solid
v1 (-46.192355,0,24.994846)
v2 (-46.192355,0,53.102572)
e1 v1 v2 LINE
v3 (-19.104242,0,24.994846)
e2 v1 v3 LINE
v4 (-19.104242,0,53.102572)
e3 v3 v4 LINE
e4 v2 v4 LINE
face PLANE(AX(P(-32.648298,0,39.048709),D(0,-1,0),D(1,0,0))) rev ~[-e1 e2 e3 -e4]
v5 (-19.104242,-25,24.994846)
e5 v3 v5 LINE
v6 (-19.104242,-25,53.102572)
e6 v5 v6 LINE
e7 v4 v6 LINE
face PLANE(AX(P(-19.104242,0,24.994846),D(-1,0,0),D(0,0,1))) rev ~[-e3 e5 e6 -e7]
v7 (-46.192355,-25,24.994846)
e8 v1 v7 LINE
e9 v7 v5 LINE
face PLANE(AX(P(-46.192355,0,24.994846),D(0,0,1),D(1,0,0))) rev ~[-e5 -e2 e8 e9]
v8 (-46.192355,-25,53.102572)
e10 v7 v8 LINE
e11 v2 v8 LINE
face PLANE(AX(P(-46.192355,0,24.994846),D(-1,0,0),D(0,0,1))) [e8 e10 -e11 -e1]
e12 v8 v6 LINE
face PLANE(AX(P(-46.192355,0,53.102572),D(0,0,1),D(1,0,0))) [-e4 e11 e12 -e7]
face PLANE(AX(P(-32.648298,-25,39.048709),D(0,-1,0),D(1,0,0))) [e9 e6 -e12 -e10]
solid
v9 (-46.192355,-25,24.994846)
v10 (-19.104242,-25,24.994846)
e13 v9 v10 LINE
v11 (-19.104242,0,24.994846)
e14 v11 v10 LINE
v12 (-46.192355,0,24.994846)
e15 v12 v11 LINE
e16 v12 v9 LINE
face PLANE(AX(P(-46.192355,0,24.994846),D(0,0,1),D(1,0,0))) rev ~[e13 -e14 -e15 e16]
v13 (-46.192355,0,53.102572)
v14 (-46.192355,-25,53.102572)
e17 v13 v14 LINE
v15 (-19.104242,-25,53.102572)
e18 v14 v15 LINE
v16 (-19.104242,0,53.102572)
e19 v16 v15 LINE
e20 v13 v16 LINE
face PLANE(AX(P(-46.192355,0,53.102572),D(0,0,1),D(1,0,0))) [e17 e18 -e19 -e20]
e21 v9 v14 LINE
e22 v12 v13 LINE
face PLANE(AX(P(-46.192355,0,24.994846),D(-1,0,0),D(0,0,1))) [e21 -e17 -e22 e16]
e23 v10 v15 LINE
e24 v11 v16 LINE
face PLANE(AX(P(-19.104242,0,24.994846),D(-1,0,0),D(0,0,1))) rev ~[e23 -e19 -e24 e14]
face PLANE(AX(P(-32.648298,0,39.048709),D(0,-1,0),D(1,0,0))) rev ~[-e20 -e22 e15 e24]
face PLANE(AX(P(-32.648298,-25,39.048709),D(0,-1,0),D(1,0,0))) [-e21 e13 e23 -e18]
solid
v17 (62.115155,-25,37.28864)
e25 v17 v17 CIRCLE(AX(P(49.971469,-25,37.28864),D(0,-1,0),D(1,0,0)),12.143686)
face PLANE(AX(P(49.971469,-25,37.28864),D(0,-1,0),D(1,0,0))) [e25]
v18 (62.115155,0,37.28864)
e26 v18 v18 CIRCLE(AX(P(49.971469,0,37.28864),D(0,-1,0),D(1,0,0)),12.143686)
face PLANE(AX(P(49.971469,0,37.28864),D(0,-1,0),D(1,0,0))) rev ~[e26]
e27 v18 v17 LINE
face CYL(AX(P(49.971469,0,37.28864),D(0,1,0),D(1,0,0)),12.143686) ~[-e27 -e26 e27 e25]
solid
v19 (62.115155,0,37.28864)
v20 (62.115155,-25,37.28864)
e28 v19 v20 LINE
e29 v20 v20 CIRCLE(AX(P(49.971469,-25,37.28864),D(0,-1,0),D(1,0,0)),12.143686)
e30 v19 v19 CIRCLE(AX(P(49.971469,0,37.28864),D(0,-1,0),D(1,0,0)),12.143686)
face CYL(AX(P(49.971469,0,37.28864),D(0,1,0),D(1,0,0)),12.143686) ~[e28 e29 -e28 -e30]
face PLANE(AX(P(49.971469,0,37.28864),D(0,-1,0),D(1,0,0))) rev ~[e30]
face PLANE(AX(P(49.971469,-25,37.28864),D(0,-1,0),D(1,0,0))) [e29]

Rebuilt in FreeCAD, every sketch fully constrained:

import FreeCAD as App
import Part
import Sketcher
Q = App.Units.Quantity

doc = App.newDocument("Part")
params = doc.addObject("Spreadsheet::Sheet", "Params")
for row, (alias, value) in enumerate([
    ("pad1_length", "25 mm"),
    ("pad2_length", "25 mm"),
], start=1):
    params.set(f"A{row}", alias)
    params.set(f"B{row}", "=" + value)
    params.setAlias(f"B{row}", alias)

body = doc.addObject("PartDesign::Body", "Body")
body.AllowCompound = True

# Sketch on XZ plane
sketch1 = body.newObject("Sketcher::SketchObject", "Sketch")
sketch1.AttachmentSupport = (doc.getObject("XZ_Plane"), [""])
sketch1.MapMode = "FlatFace"
sketch1.addGeometry([
    Part.LineSegment(App.Vector(-46, 53, 0), App.Vector(-46, 25, 0)),  # 0
    Part.LineSegment(App.Vector(-46, 25, 0), App.Vector(-19, 25, 0)),  # 1
    Part.LineSegment(App.Vector(-19, 25, 0), App.Vector(-19, 53, 0)),  # 2
    Part.LineSegment(App.Vector(-19, 53, 0), App.Vector(-46, 53, 0)),  # 3
    Part.Circle(App.Vector(50, 37, 0), App.Vector(0, 0, 1), 12),  # 4
], False)
sketch1.addConstraint([
    Sketcher.Constraint("Coincident", 0, 2, 1, 1),
    Sketcher.Constraint("Coincident", 1, 2, 2, 1),
    Sketcher.Constraint("Coincident", 2, 2, 3, 1),
    Sketcher.Constraint("Coincident", 3, 2, 0, 1),
    Sketcher.Constraint("Vertical", 0),
    Sketcher.Constraint("Horizontal", 1),
    Sketcher.Constraint("Vertical", 2),
    Sketcher.Constraint("Horizontal", 3),
    Sketcher.Constraint("Diameter", 4, Q("24.287372 mm")),
    Sketcher.Constraint("DistanceX", 1, 1, 1, 2, Q("27.088113 mm")),
    Sketcher.Constraint("DistanceY", 0, 2, 0, 1, Q("28.107726 mm")),
    Sketcher.Constraint("DistanceX", -1, 1, 4, 3, Q("49.971469 mm")),
    Sketcher.Constraint("DistanceY", -1, 1, 4, 3, Q("37.28864 mm")),
    Sketcher.Constraint("DistanceX", 1, 2, -1, 1, Q("19.104242 mm")),
    Sketcher.Constraint("DistanceY", -1, 1, 0, 2, Q("24.994846 mm")),
])
pad1 = body.newObject("PartDesign::Pad", "Pad")
pad1.Profile = sketch1
pad1.setExpression("Length", "Params.pad1_length")
body2 = doc.addObject("PartDesign::Body", "Body001")
body2.AllowCompound = True

# Sketch on XZ plane
sketch2 = body2.newObject("Sketcher::SketchObject", "Sketch001")
sketch2.AttachmentSupport = (doc.getObject("XZ_Plane001"), [""])
sketch2.MapMode = "FlatFace"
sketch2.addGeometry([
    Part.LineSegment(App.Vector(-46, 53, 0), App.Vector(-46, 25, 0)),  # 0
    Part.LineSegment(App.Vector(-46, 25, 0), App.Vector(-19, 25, 0)),  # 1
    Part.LineSegment(App.Vector(-19, 25, 0), App.Vector(-19, 53, 0)),  # 2
    Part.LineSegment(App.Vector(-19, 53, 0), App.Vector(-46, 53, 0)),  # 3
    Part.Circle(App.Vector(50, 37, 0), App.Vector(0, 0, 1), 12),  # 4
], False)
sketch2.addConstraint([
    Sketcher.Constraint("Coincident", 0, 2, 1, 1),
    Sketcher.Constraint("Coincident", 1, 2, 2, 1),
    Sketcher.Constraint("Coincident", 2, 2, 3, 1),
    Sketcher.Constraint("Coincident", 3, 2, 0, 1),
    Sketcher.Constraint("Vertical", 0),
    Sketcher.Constraint("Horizontal", 1),
    Sketcher.Constraint("Vertical", 2),
    Sketcher.Constraint("Horizontal", 3),
    Sketcher.Constraint("Diameter", 4, Q("24.287372 mm")),
    Sketcher.Constraint("DistanceX", 1, 1, 1, 2, Q("27.088113 mm")),
    Sketcher.Constraint("DistanceY", 0, 2, 0, 1, Q("28.107726 mm")),
    Sketcher.Constraint("DistanceX", -1, 1, 4, 3, Q("49.971469 mm")),
    Sketcher.Constraint("DistanceY", -1, 1, 4, 3, Q("37.28864 mm")),
    Sketcher.Constraint("DistanceX", 1, 2, -1, 1, Q("19.104242 mm")),
    Sketcher.Constraint("DistanceY", -1, 1, 0, 2, Q("24.994846 mm")),
])
pad2 = body2.newObject("PartDesign::Pad", "Pad001")
pad2.Profile = sketch2
pad2.setExpression("Length", "Params.pad2_length")

doc.recompute()
